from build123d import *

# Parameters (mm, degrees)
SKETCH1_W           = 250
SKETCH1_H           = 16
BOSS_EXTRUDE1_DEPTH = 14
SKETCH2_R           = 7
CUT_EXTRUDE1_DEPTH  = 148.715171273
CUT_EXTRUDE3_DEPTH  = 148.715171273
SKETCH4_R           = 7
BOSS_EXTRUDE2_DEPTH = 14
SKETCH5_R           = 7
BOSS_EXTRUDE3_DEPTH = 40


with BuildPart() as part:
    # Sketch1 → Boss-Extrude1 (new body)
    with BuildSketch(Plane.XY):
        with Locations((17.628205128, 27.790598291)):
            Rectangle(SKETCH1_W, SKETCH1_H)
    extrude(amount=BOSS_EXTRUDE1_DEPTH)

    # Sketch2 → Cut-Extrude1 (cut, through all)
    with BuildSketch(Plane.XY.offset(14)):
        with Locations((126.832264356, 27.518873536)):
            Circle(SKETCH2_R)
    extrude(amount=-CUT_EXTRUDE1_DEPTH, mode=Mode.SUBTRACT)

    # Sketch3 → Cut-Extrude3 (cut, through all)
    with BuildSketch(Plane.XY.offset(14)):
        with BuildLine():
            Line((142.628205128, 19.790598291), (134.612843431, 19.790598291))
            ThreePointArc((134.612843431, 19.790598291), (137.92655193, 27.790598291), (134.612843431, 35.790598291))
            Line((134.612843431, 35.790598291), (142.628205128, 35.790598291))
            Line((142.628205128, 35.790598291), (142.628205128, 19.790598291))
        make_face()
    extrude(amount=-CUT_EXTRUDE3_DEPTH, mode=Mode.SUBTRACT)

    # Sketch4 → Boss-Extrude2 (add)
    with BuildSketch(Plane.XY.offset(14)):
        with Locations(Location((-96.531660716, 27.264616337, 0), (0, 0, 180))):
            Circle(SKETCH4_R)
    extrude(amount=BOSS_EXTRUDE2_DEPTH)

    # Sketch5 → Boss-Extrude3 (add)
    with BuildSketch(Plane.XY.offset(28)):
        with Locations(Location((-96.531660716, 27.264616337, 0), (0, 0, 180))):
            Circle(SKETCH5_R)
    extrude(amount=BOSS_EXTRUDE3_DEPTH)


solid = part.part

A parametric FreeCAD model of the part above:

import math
import FreeCAD as App
import Part
import Sketcher

V = App.Vector
Q = App.Units.Quantity


def add_polygon(sketch, points):
    """Adds a closed chain of lines whose ends are joined by coincident constraints."""
    first, n = sketch.GeometryCount, len(points)
    for a, b in zip(points, points[1:] + points[:1]):
        sketch.addGeometry(Part.LineSegment(App.Vector(*a, 0), App.Vector(*b, 0)), False)
    for i in range(n):
        sketch.addConstraint(Sketcher.Constraint("Coincident", first + i, 2, first + (i + 1) % n, 1))

doc = App.newDocument("Part")
body = doc.addObject("PartDesign::Body", "Body")

# Sketch on XY plane
sketch1 = doc.addObject("Sketcher::SketchObject", "Sketch")
body.addObject(sketch1)
sketch1.AttachmentSupport = (doc.XY_Plane, [""])
sketch1.MapMode = "FlatFace"
add_polygon(sketch1, [(-107, 36), (-107, 20), (143, 20), (143, 36)])  # lines 0-3
sketch1.addConstraint(Sketcher.Constraint("Vertical", 0))
sketch1.addConstraint(Sketcher.Constraint("Horizontal", 1))
sketch1.addConstraint(Sketcher.Constraint("Vertical", 2))
sketch1.addConstraint(Sketcher.Constraint("Horizontal", 3))
sketch1.addConstraint(Sketcher.Constraint("DistanceX", 1, 1, 1, 2, Q("250 mm")))
sketch1.addConstraint(Sketcher.Constraint("DistanceY", 0, 2, 0, 1, Q("16 mm")))
sketch1.addConstraint(Sketcher.Constraint("DistanceY", -1, 1, 0, 2, Q("19.790598 mm")))
sketch1.addConstraint(Sketcher.Constraint("DistanceX", 0, 2, -1, 1, Q("107.371795 mm")))
pad1 = doc.addObject("PartDesign::Pad", "Pad")
body.addObject(pad1)
pad1.Profile = sketch1
pad1.Length = 14

# Sketch on XY plane
sketch2 = doc.addObject("Sketcher::SketchObject", "Sketch001")
body.addObject(sketch2)
sketch2.AttachmentSupport = (doc.XY_Plane, [""])
sketch2.MapMode = "FlatFace"
sketch2.AttachmentOffset = App.Placement(V(0, 0, 14), App.Rotation())
sketch2.addGeometry(Part.Circle(V(127, 28, 0), V(0, 0, 1), 7), False)
sketch2.addConstraint(Sketcher.Constraint("Diameter", 0, Q("14 mm")))
sketch2.addConstraint(Sketcher.Constraint("DistanceX", -1, 1, 0, 3, Q("126.832264 mm")))
sketch2.addConstraint(Sketcher.Constraint("DistanceY", -1, 1, 0, 3, Q("27.518874 mm")))
pocket1 = doc.addObject("PartDesign::Pocket", "Pocket")
body.addObject(pocket1)
pocket1.Profile = sketch2
pocket1.Type = "ThroughAll"

# Sketch on XY plane
sketch3 = doc.addObject("Sketcher::SketchObject", "Sketch002")
body.addObject(sketch3)
sketch3.AttachmentSupport = (doc.XY_Plane, [""])
sketch3.MapMode = "FlatFace"
sketch3.AttachmentOffset = App.Placement(V(0, 0, 14), App.Rotation())
sketch3.addGeometry(Part.LineSegment(V(135, 20, 0), V(143, 20, 0)), False)
sketch3.addGeometry(Part.LineSegment(V(143, 20, 0), V(143, 36, 0)), False)
sketch3.addGeometry(Part.LineSegment(V(143, 36, 0), V(135, 36, 0)), False)
sketch3.addGeometry(Part.ArcOfCircle(Part.Circle(V(127, 28, 0), V(0, 0, 1), 11), math.radians(-45), math.radians(45)), False)
sketch3.addConstraint(Sketcher.Constraint("Coincident", 0, 2, 1, 1))
sketch3.addConstraint(Sketcher.Constraint("Coincident", 1, 2, 2, 1))
sketch3.addConstraint(Sketcher.Constraint("Coincident", 2, 2, 3, 2))
sketch3.addConstraint(Sketcher.Constraint("Coincident", 3, 1, 0, 1))
sketch3.addConstraint(Sketcher.Constraint("Horizontal", 0))
sketch3.addConstraint(Sketcher.Constraint("Vertical", 1))
sketch3.addConstraint(Sketcher.Constraint("Horizontal", 2))
sketch3.addConstraint(Sketcher.Constraint("Vertical", 2, 2, 3, 1))
sketch3.addConstraint(Sketcher.Constraint("DistanceY", 1, 1, 1, 2, Q("16 mm")))
sketch3.addConstraint(Sketcher.Constraint("DistanceX", 3, 3, 2, 2, Q("8 mm")))
sketch3.addConstraint(Sketcher.Constraint("DistanceX", 0, 1, 0, 2, Q("8.015362 mm")))
sketch3.addConstraint(Sketcher.Constraint("DistanceY", -1, 1, 3, 3, Q("27.790598 mm")))
sketch3.addConstraint(Sketcher.Constraint("DistanceX", -1, 1, 3, 3, Q("126.612843 mm")))
pocket2 = doc.addObject("PartDesign::Pocket", "Pocket001")
body.addObject(pocket2)
pocket2.Profile = sketch3
pocket2.Type = "ThroughAll"

# Sketch on XY plane
sketch4 = doc.addObject("Sketcher::SketchObject", "Sketch003")
body.addObject(sketch4)
sketch4.AttachmentSupport = (doc.XY_Plane, [""])
sketch4.MapMode = "FlatFace"
sketch4.AttachmentOffset = App.Placement(V(0, 0, 14), App.Rotation())
sketch4.addGeometry(Part.Circle(V(-97, 27, 0), V(0, 0, 1), 7), False)
sketch4.addConstraint(Sketcher.Constraint("Diameter", 0, Q("14 mm")))
sketch4.addConstraint(Sketcher.Constraint("DistanceX", 0, 3, -1, 1, Q("96.531661 mm")))
sketch4.addConstraint(Sketcher.Constraint("DistanceY", -1, 1, 0, 3, Q("27.264616 mm")))
pad2 = doc.addObject("PartDesign::Pad", "Pad001")
body.addObject(pad2)
pad2.Profile = sketch4
pad2.Length = 14

# Sketch on XY plane
sketch5 = doc.addObject("Sketcher::SketchObject", "Sketch004")
body.addObject(sketch5)
sketch5.AttachmentSupport = (doc.XY_Plane, [""])
sketch5.MapMode = "FlatFace"
sketch5.AttachmentOffset = App.Placement(V(0, 0, 28), App.Rotation())
sketch5.addGeometry(Part.Circle(V(-97, 27, 0), V(0, 0, 1), 7), False)
sketch5.addConstraint(Sketcher.Constraint("Diameter", 0, Q("14 mm")))
sketch5.addConstraint(Sketcher.Constraint("DistanceX", 0, 3, -1, 1, Q("96.531661 mm")))
sketch5.addConstraint(Sketcher.Constraint("DistanceY", -1, 1, 0, 3, Q("27.264616 mm")))
pad3 = doc.addObject("PartDesign::Pad", "Pad002")
body.addObject(pad3)
pad3.Profile = sketch5
pad3.Length = 40

doc.recompute()
